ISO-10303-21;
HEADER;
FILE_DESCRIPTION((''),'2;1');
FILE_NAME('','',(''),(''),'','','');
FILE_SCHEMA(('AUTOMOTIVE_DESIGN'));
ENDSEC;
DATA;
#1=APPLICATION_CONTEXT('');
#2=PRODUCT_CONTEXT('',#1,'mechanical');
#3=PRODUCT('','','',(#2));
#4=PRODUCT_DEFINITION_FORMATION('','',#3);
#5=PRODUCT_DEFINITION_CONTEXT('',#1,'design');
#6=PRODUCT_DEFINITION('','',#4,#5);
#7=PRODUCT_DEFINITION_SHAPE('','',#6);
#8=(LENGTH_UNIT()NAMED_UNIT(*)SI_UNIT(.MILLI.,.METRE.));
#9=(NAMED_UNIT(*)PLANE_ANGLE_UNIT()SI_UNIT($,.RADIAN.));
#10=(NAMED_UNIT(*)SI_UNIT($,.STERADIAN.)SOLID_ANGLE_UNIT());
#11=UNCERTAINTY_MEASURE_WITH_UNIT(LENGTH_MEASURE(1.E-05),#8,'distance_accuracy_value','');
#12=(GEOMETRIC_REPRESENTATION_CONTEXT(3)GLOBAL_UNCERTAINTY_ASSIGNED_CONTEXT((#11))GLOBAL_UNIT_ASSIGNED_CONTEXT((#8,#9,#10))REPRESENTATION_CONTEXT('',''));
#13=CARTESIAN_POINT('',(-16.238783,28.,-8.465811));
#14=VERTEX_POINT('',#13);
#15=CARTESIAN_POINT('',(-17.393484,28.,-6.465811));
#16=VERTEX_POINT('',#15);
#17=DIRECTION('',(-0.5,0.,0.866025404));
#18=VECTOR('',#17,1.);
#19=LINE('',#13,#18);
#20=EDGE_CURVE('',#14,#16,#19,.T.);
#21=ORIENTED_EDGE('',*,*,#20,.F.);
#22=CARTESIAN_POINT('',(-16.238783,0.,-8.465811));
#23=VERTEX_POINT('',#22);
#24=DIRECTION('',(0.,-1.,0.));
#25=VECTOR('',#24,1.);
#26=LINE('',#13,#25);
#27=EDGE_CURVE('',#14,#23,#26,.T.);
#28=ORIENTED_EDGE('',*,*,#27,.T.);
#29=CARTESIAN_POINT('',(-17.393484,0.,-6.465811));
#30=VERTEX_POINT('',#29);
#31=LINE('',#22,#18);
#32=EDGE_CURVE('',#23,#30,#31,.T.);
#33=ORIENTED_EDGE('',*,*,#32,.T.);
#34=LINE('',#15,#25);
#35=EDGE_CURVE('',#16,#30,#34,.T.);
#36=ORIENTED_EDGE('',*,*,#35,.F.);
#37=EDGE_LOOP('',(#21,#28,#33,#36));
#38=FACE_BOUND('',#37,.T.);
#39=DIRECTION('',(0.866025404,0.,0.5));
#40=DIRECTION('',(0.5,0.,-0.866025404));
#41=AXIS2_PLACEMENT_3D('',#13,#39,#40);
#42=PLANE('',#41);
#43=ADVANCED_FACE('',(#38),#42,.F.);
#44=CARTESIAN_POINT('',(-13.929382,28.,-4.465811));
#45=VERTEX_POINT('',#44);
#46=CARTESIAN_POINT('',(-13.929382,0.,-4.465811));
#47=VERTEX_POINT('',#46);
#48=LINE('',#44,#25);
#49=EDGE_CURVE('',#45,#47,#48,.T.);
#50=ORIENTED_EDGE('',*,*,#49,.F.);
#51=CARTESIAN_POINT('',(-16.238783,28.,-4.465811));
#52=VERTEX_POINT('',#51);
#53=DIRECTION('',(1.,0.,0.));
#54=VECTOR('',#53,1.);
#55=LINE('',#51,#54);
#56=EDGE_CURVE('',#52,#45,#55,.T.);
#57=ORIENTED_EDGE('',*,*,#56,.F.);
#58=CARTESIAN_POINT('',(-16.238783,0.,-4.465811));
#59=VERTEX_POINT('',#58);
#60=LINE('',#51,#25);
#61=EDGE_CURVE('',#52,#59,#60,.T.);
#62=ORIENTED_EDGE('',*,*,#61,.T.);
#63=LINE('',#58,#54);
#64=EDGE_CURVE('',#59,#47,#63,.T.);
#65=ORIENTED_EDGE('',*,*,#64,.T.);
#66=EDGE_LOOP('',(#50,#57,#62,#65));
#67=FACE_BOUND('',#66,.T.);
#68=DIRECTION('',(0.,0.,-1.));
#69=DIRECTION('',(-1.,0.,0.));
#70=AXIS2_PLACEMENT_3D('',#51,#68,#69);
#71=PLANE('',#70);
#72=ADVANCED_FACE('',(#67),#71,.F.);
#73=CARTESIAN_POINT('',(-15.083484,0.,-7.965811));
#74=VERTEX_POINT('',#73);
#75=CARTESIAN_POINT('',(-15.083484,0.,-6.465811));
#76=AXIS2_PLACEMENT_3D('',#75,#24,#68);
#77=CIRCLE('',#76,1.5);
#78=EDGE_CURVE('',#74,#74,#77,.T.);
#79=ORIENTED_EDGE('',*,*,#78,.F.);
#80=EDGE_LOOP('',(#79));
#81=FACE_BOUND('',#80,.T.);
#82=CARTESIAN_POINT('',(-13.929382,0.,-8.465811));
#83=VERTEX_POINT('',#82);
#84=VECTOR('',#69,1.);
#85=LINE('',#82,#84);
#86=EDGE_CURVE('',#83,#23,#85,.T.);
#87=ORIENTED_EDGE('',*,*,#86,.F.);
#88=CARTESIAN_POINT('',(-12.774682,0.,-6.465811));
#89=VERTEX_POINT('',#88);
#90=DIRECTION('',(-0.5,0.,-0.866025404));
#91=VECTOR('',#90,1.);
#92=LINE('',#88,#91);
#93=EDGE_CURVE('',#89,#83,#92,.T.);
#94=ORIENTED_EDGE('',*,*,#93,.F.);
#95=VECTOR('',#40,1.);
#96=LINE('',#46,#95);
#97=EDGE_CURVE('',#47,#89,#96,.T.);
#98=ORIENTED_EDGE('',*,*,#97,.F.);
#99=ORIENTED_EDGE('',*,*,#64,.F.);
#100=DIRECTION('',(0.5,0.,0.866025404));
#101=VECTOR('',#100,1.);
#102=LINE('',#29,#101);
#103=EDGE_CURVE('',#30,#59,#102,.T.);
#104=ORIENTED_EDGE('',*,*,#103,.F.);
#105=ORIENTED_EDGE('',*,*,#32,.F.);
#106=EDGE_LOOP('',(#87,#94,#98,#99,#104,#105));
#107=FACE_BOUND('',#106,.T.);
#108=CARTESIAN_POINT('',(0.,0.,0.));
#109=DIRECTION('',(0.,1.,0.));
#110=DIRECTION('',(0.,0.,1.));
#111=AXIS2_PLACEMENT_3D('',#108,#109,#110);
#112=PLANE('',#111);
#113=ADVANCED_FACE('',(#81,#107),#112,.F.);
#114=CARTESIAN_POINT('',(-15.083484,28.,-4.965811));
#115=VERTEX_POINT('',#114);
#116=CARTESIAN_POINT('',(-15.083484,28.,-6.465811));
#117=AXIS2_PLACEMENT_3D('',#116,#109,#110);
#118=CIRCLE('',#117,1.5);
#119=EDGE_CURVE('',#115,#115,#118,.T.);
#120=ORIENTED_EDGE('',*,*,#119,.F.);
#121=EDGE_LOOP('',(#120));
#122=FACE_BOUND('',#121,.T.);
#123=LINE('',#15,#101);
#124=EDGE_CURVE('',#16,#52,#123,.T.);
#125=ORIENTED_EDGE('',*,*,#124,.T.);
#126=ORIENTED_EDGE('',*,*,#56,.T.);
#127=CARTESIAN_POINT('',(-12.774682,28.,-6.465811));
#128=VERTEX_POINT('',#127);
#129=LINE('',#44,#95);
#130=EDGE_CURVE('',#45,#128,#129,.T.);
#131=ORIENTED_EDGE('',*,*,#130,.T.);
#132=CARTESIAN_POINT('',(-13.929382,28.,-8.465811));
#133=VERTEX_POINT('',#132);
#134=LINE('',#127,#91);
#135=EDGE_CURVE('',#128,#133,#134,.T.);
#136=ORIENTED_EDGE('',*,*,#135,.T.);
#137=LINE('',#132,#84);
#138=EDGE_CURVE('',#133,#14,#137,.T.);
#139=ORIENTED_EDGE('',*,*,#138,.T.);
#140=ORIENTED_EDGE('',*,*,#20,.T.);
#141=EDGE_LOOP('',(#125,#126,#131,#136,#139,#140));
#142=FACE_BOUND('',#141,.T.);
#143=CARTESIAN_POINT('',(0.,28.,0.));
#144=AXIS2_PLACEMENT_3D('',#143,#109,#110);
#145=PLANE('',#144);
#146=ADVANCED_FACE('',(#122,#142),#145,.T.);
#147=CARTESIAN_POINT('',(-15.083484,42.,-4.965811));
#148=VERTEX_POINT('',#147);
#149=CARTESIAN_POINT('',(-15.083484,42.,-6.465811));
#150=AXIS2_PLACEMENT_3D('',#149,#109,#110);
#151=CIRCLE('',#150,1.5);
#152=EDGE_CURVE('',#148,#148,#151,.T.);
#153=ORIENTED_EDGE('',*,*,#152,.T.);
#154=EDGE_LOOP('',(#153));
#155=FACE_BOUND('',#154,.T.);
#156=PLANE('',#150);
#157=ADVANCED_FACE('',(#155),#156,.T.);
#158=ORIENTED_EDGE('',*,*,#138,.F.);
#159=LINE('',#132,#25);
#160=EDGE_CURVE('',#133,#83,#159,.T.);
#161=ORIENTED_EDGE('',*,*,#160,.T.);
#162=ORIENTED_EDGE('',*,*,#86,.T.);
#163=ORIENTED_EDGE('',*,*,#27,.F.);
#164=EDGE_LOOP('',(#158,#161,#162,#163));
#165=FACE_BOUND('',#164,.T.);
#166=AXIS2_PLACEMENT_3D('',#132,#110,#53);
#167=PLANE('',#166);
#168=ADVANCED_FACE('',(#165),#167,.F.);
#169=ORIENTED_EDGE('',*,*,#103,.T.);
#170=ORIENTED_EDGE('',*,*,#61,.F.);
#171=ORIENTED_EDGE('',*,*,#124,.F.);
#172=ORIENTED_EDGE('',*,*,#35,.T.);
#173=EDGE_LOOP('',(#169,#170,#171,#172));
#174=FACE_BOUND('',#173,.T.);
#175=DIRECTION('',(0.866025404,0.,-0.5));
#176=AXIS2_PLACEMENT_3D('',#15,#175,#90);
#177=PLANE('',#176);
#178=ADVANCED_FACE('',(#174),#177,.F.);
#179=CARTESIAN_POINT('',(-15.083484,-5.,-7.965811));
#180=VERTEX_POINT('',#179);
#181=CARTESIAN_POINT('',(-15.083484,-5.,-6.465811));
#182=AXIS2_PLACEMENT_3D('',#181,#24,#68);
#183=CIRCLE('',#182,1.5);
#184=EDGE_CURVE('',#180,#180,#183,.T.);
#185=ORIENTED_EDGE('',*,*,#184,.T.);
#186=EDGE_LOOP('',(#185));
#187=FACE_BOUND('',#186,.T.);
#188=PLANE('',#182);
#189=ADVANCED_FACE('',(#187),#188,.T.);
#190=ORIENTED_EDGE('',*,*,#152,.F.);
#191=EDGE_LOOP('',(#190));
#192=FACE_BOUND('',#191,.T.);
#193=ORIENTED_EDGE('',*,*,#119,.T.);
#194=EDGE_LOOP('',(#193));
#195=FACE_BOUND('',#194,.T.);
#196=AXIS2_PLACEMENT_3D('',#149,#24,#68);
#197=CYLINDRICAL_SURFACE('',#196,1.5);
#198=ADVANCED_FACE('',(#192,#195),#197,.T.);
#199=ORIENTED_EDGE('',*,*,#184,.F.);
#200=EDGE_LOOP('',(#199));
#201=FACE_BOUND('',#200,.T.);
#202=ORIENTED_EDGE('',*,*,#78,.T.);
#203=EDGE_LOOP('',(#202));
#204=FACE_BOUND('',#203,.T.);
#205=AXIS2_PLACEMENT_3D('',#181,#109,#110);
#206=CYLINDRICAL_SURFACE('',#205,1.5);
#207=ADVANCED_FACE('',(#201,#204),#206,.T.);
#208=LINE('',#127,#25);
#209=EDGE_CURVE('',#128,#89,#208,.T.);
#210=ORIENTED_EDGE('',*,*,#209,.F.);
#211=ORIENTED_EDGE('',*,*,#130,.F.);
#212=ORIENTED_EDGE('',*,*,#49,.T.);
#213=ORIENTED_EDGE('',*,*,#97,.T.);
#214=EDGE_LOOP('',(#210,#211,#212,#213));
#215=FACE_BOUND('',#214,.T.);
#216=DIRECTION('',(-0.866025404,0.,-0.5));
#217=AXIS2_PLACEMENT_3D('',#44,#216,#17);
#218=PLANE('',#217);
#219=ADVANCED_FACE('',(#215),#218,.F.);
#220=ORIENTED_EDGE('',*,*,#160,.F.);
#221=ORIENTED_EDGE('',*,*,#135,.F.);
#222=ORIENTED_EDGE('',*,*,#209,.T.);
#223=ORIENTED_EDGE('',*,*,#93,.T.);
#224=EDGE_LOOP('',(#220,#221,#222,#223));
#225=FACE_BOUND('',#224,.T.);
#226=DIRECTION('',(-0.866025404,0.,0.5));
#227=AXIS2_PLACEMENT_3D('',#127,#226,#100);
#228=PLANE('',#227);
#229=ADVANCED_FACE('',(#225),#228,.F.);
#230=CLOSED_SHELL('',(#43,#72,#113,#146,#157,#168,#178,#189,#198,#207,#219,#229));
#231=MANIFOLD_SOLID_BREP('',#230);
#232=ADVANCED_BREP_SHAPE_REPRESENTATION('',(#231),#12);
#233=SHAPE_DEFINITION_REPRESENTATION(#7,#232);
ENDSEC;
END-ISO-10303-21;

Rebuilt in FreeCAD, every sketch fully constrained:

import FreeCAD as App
import Part
import Sketcher
from FreeCAD import Vector
Q = App.Units.Quantity


def add_polygon(sketch, points):
    """Adds a closed chain of lines whose ends are joined by coincident constraints."""
    first, n = sketch.GeometryCount, len(points)
    for a, b in zip(points, points[1:] + points[:1]):
        sketch.addGeometry(Part.LineSegment(App.Vector(*a, 0), App.Vector(*b, 0)), False)
    for i in range(n):
        sketch.addConstraint(Sketcher.Constraint("Coincident", first + i, 2, first + (i + 1) % n, 1))

doc = App.newDocument("Part")
body = doc.addObject("PartDesign::Body", "Body")

# Sketch on XZ plane
sketch1 = body.newObject("Sketcher::SketchObject", "Sketch")
sketch1.AttachmentSupport = (doc.getObject("XZ_Plane"), [""])
sketch1.MapMode = "FlatFace"
add_polygon(sketch1, [(-12.774682, -6.465811), (-13.929382, -8.465811), (-16.238783, -8.465811), (-17.393484, -6.465811), (-16.238783, -4.465811), (-13.929382, -4.465811)])  # lines 0-5
sketch1.addConstraint([
    Sketcher.Constraint("Horizontal", 1),
    Sketcher.Constraint("Horizontal", 4),
    Sketcher.Constraint("Parallel", 0, 3),
    Sketcher.Constraint("Parallel", 2, 5),
    Sketcher.Constraint("Horizontal", 2, 2, 5, 2),
    Sketcher.Constraint("Vertical", 1, 2, 3, 2),
    Sketcher.Constraint("Vertical", 0, 2, 4, 2),
    Sketcher.Constraint("Angle", 0, Q("-120 deg")),
    Sketcher.Constraint("DistanceY", 1, 2, 2, 2, Q("2 mm")),
    Sketcher.Constraint("DistanceX", 1, 2, 1, 1, Q("2.309401 mm")),
    Sketcher.Constraint("DistanceY", 0, 2, -1, 1, Q("8.465811 mm")),
    Sketcher.Constraint("DistanceX", 5, 2, -1, 1, Q("12.774682 mm")),
])
pad1 = body.newObject("PartDesign::Pad", "Pad")
pad1.Profile = sketch1
pad1.Length = 28
pad1.Reversed = True

# Sketch on XZ plane
sketch2 = body.newObject("Sketcher::SketchObject", "Sketch001")
sketch2.AttachmentSupport = (doc.getObject("XZ_Plane"), [""])
sketch2.MapMode = "FlatFace"
sketch2.AttachmentOffset = App.Placement(Vector(0, 0, -28), App.Rotation())
sketch2.addGeometry(Part.Circle(Vector(-15.083484, -6.465811, 0), Vector(0, 0, 1), 1.5), False)
sketch2.addConstraint([
    Sketcher.Constraint("Diameter", 0, Q("3 mm")),
    Sketcher.Constraint("DistanceY", 0, 3, -1, 1, Q("6.465811 mm")),
    Sketcher.Constraint("DistanceX", 0, 3, -1, 1, Q("15.083484 mm")),
])
pad2 = body.newObject("PartDesign::Pad", "Pad001")
pad2.Profile = sketch2
pad2.Length = 14
pad2.Reversed = True

# Sketch on XZ plane
sketch3 = body.newObject("Sketcher::SketchObject", "Sketch002")
sketch3.AttachmentSupport = (doc.getObject("XZ_Plane"), [""])
sketch3.MapMode = "FlatFace"
sketch3.AttachmentOffset = App.Placement(Vector(0, 0, 5), App.Rotation())
sketch3.addGeometry(Part.Circle(Vector(-15.083484, -6.465811, 0), Vector(0, 0, 1), 1.5), False)
sketch3.addConstraint([
    Sketcher.Constraint("Diameter", 0, Q("3 mm")),
    Sketcher.Constraint("DistanceY", 0, 3, -1, 1, Q("6.465811 mm")),
    Sketcher.Constraint("DistanceX", 0, 3, -1, 1, Q("15.083484 mm")),
])
pad3 = body.newObject("PartDesign::Pad", "Pad002")
pad3.Profile = sketch3
pad3.Length = 5
pad3.Reversed = True

doc.recompute()
